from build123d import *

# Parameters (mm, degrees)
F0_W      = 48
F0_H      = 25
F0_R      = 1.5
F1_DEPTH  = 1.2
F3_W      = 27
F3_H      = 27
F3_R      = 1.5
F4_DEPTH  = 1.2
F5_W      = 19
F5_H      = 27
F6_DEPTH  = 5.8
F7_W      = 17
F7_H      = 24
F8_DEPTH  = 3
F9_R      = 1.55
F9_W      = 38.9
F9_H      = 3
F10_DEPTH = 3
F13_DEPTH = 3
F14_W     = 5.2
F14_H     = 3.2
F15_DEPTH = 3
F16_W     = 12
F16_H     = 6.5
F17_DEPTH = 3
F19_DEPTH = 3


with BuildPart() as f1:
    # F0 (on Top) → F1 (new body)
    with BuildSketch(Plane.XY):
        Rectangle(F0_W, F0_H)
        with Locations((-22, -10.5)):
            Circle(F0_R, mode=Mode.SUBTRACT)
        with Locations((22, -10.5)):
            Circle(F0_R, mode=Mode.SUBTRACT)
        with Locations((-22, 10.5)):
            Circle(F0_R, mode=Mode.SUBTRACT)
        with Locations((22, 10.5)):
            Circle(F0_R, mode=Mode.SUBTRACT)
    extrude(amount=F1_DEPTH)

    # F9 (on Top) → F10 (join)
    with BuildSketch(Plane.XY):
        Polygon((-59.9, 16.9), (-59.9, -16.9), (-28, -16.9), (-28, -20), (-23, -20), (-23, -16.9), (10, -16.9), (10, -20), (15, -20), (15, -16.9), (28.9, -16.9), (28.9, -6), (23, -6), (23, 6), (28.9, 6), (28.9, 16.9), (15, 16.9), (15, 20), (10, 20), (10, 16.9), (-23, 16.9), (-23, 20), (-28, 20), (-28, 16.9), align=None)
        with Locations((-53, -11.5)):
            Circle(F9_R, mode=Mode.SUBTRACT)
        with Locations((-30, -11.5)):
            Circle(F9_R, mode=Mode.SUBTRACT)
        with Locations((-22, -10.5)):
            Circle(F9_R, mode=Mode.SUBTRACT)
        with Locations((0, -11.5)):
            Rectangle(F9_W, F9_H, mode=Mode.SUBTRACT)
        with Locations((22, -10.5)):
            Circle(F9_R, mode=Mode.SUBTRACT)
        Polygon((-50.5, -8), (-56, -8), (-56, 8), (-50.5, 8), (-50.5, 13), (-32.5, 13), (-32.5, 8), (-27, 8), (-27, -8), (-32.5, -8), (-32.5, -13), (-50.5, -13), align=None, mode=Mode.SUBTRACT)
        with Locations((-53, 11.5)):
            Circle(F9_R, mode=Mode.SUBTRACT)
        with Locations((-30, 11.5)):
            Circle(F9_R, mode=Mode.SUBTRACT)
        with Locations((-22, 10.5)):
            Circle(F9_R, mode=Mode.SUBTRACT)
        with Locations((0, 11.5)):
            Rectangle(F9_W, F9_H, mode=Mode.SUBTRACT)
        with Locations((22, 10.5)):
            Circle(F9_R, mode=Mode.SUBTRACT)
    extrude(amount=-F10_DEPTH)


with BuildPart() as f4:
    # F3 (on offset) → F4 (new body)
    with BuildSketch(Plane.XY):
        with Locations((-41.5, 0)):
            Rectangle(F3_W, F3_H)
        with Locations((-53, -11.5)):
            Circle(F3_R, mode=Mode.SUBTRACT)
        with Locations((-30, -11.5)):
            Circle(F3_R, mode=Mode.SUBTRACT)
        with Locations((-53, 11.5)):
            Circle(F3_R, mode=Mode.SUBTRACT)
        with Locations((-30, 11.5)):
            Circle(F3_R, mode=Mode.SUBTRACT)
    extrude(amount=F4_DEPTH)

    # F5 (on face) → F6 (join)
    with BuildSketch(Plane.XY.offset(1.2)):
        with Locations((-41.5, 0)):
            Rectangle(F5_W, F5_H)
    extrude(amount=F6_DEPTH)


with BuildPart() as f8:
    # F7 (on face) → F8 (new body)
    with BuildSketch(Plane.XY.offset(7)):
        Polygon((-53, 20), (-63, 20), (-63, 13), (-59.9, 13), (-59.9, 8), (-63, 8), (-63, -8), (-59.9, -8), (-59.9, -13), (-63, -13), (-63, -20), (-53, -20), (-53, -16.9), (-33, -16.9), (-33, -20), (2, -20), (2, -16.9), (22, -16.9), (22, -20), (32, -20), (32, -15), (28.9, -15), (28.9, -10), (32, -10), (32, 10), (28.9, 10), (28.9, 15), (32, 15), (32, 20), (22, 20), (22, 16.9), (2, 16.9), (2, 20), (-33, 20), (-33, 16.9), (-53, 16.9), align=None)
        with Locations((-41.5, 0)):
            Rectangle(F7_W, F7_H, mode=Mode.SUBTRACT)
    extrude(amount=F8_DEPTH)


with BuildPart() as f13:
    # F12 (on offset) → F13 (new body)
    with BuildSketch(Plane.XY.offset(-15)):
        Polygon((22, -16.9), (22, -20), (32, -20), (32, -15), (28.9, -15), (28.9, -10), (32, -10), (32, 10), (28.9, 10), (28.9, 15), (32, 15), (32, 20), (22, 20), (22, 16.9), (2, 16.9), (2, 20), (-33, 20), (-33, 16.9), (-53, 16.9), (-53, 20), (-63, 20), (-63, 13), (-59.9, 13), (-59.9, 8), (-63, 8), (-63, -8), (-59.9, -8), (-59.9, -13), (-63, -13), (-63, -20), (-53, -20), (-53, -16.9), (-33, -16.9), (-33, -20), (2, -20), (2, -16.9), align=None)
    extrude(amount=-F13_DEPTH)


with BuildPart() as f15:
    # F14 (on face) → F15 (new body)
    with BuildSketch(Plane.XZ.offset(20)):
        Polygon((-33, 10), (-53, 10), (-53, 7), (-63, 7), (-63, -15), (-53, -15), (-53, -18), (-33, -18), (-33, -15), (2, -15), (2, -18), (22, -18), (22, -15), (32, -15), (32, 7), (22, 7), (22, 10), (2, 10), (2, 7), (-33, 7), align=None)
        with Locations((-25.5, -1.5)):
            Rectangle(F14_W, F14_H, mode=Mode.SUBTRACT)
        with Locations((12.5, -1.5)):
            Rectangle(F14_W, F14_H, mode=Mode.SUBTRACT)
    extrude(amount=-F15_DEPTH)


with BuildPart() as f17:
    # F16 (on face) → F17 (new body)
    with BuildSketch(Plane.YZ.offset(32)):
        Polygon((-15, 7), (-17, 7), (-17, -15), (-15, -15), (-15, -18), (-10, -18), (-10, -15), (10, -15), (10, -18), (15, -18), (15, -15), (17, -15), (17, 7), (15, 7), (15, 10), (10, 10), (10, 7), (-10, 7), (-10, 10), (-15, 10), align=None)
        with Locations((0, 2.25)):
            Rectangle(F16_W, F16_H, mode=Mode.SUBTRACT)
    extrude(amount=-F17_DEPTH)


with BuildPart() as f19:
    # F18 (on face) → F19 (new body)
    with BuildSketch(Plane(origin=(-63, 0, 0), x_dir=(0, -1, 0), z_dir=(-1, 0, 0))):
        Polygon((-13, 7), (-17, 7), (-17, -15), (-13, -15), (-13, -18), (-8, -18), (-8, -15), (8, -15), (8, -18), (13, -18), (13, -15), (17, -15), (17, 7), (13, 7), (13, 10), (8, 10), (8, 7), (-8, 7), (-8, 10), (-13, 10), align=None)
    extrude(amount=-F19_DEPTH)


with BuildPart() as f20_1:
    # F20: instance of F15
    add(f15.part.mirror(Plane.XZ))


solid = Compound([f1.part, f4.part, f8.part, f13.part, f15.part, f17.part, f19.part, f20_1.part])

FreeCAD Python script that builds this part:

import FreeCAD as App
import Part
import Sketcher
Q = App.Units.Quantity


def add_polygon(sketch, points):
    """Adds a closed chain of lines whose ends are joined by coincident constraints."""
    first, n = sketch.GeometryCount, len(points)
    for a, b in zip(points, points[1:] + points[:1]):
        sketch.addGeometry(Part.LineSegment(App.Vector(*a, 0), App.Vector(*b, 0)), False)
    for i in range(n):
        sketch.addConstraint(Sketcher.Constraint("Coincident", first + i, 2, first + (i + 1) % n, 1))

doc = App.newDocument("Part")
body = doc.addObject("PartDesign::Body", "Body")

sketch1 = doc.addObject("Sketcher::SketchObject", "Sketch")
body.addObject(sketch1)
sketch1.AttachmentSupport = (doc.XY_Plane, [""])
sketch1.MapMode = "FlatFace"
add_polygon(sketch1, [(-24, 12.5), (-24, -12.5), (24, -12.5), (24, 12.5)])
sketch1.addGeometry(Part.Circle(App.Vector(-22, -10.5, 0), App.Vector(0, 0, 1), 1.5), False)
sketch1.addGeometry(Part.Circle(App.Vector(22, -10.5, 0), App.Vector(0, 0, 1), 1.5), False)
sketch1.addGeometry(Part.Circle(App.Vector(-22, 10.5, 0), App.Vector(0, 0, 1), 1.5), False)
sketch1.addGeometry(Part.Circle(App.Vector(22, 10.5, 0), App.Vector(0, 0, 1), 1.5), False)
sketch1.addConstraint([
    Sketcher.Constraint("Vertical", 0),
    Sketcher.Constraint("Horizontal", 1),
    Sketcher.Constraint("Vertical", 2),
    Sketcher.Constraint("Horizontal", 3),
    Sketcher.Constraint("Equal", 4, 5),
    Sketcher.Constraint("Equal", 5, 6),
    Sketcher.Constraint("Equal", 6, 7),
    Sketcher.Constraint("Symmetric", 5, 3, 6, 3, -1, 1),
    Sketcher.Constraint("Symmetric", 4, 3, 7, 3, -1, 1),
    Sketcher.Constraint("Symmetric", 0, 2, 2, 2, -1, 1),
    Sketcher.Constraint("Symmetric", 4, 3, 5, 3, -2),
    Sketcher.Constraint("Diameter", 4, Q("3 mm")),
    Sketcher.Constraint("DistanceX", 1, 1, 1, 2, Q("48 mm")),
    Sketcher.Constraint("DistanceY", 0, 2, 0, 1, Q("25 mm")),
    Sketcher.Constraint("DistanceX", 4, 3, -1, 1, Q("22 mm")),
    Sketcher.Constraint("DistanceY", 4, 3, 6, 3, Q("21 mm")),
])
pad1 = doc.addObject("PartDesign::Pad", "Pad")
body.addObject(pad1)
pad1.Profile = sketch1
pad1.Length = 1.2

sketch2 = doc.addObject("Sketcher::SketchObject", "Sketch001")
body.addObject(sketch2)
sketch2.AttachmentSupport = (doc.XY_Plane, [""])
sketch2.MapMode = "FlatFace"
add_polygon(sketch2, [(-59.9, 16.9), (-59.9, -16.9), (-28, -16.9), (-28, -20), (-23, -20), (-23, -16.9), (10, -16.9), (10, -20), (15, -20), (15, -16.9), (28.9, -16.9), (28.9, -6), (23, -6), (23, 6), (28.9, 6), (28.9, 16.9), (15, 16.9), (15, 20), (10, 20), (10, 16.9), (-23, 16.9), (-23, 20), (-28, 20), (-28, 16.9)])
sketch2.addGeometry(Part.Circle(App.Vector(-53, -11.5, 0), App.Vector(0, 0, 1), 1.6), False)
sketch2.addGeometry(Part.Circle(App.Vector(-30, -11.5, 0), App.Vector(0, 0, 1), 1.6), False)
sketch2.addGeometry(Part.Circle(App.Vector(-22, -10.5, 0), App.Vector(0, 0, 1), 1.6), False)
add_polygon(sketch2, [(19.4, -13), (-19.4, -13), (-19.4, -10), (19.4, -10)])
sketch2.addGeometry(Part.Circle(App.Vector(22, -10.5, 0), App.Vector(0, 0, 1), 1.6), False)
add_polygon(sketch2, [(-50.5, -13), (-50.5, -8), (-56, -8), (-56, 8), (-50.5, 8), (-50.5, 13), (-32.5, 13), (-32.5, 8), (-27, 8), (-27, -8), (-32.5, -8), (-32.5, -13)])
sketch2.addGeometry(Part.Circle(App.Vector(-53, 11.5, 0), App.Vector(0, 0, 1), 1.6), False)
sketch2.addGeometry(Part.Circle(App.Vector(-30, 11.5, 0), App.Vector(0, 0, 1), 1.6), False)
sketch2.addGeometry(Part.Circle(App.Vector(-22, 10.5, 0), App.Vector(0, 0, 1), 1.6), False)
add_polygon(sketch2, [(19.4, 10), (-19.4, 10), (-19.4, 13), (19.4, 13)])
sketch2.addGeometry(Part.Circle(App.Vector(22, 10.5, 0), App.Vector(0, 0, 1), 1.6), False)
sketch2.addConstraint([
    Sketcher.Constraint("Vertical", 0),
    Sketcher.Constraint("Horizontal", 1),
    Sketcher.Constraint("Vertical", 2),
    Sketcher.Constraint("Horizontal", 3),
    Sketcher.Constraint("Vertical", 4),
    Sketcher.Constraint("Horizontal", 5),
    Sketcher.Constraint("Vertical", 6),
    Sketcher.Constraint("Horizontal", 7),
    Sketcher.Constraint("Vertical", 8),
    Sketcher.Constraint("Horizontal", 9),
    Sketcher.Constraint("Vertical", 10),
    Sketcher.Constraint("Horizontal", 11),
    Sketcher.Constraint("Vertical", 12),
    Sketcher.Constraint("Horizontal", 13),
    Sketcher.Constraint("Vertical", 14),
    Sketcher.Constraint("Horizontal", 15),
    Sketcher.Constraint("Vertical", 16),
    Sketcher.Constraint("Horizontal", 17),
    Sketcher.Constraint("Vertical", 18),
    Sketcher.Constraint("Horizontal", 19),
    Sketcher.Constraint("Vertical", 20),
    Sketcher.Constraint("Horizontal", 21),
    Sketcher.Constraint("Vertical", 22),
    Sketcher.Constraint("Horizontal", 23),
    Sketcher.Constraint("Horizontal", 27),
    Sketcher.Constraint("Vertical", 28),
    Sketcher.Constraint("Horizontal", 29),
    Sketcher.Constraint("Vertical", 30),
    Sketcher.Constraint("Vertical", 32),
    Sketcher.Constraint("Horizontal", 33),
    Sketcher.Constraint("Vertical", 34),
    Sketcher.Constraint("Horizontal", 35),
    Sketcher.Constraint("Vertical", 36),
    Sketcher.Constraint("Horizontal", 37),
    Sketcher.Constraint("Vertical", 38),
    Sketcher.Constraint("Horizontal", 39),
    Sketcher.Constraint("Vertical", 40),
    Sketcher.Constraint("Horizontal", 41),
    Sketcher.Constraint("Vertical", 42),
    Sketcher.Constraint("Horizontal", 43),
    Sketcher.Constraint("Horizontal", 47),
    Sketcher.Constraint("Vertical", 48),
    Sketcher.Constraint("Horizontal", 49),
    Sketcher.Constraint("Vertical", 50),
    Sketcher.Constraint("Equal", 24, 25),
    Sketcher.Constraint("Equal", 25, 26),
    Sketcher.Constraint("Equal", 26, 31),
    Sketcher.Constraint("Equal", 31, 44),
    Sketcher.Constraint("Equal", 44, 45),
    Sketcher.Constraint("Equal", 45, 46),
    Sketcher.Constraint("Equal", 46, 51),
    Sketcher.Constraint("Symmetric", 31, 3, 46, 3, -1, 1),
    Sketcher.Constraint("Symmetric", 26, 3, 51, 3, -1, 1),
    Sketcher.Constraint("Symmetric", 29, 2, 47, 2, -1, 1),
    Sketcher.Constraint("Symmetric", 27, 2, 49, 2, -1, 1),
    Sketcher.Constraint("Symmetric", 26, 3, 31, 3, -2),
    Sketcher.Constraint("Symmetric", 24, 3, 44, 3, -1),
    Sketcher.Constraint("Symmetric", 25, 3, 45, 3, -1),
    Sketcher.Constraint("Symmetric", 10, 2, 13, 2, -1),
    Sketcher.Constraint("Symmetric", 8, 2, 15, 2, -1),
    Sketcher.Constraint("Symmetric", 6, 2, 17, 2, -1),
    Sketcher.Constraint("Symmetric", 4, 2, 19, 2, -1),
    Sketcher.Constraint("Symmetric", 2, 2, 21, 2, -1),
    Sketcher.Constraint("Symmetric", 32, 2, 35, 2, -1),
    Sketcher.Constraint("Symmetric", 38, 2, 41, 2, -1),
    Sketcher.Constraint("Horizontal", 24, 3, 25, 3),
    Sketcher.Constraint("Horizontal", 1, 2, 4, 2),
    Sketcher.Constraint("Horizontal", 3, 2, 6, 2),
    Sketcher.Constraint("Horizontal", 5, 2, 8, 2),
    Sketcher.Constraint("Horizontal", 19, 2, 22, 2),
    Sketcher.Constraint("Horizontal", 35, 2, 38, 2),
    Sketcher.Constraint("Horizontal", 30, 2, 42, 2),
    Sketcher.Constraint("Horizontal", 37, 2, 48, 2),
    Sketcher.Constraint("Vertical", 28, 2, 47, 2),
    Sketcher.Constraint("Equal", 3, 7),
    Sketcher.Constraint("Equal", 35, 39),
    Sketcher.Constraint("Equal", 21, 32),
    Sketcher.Constraint("Diameter", 24, Q("3.1 mm")),
    Sketcher.Constraint("DistanceX", 3, 1, 3, 2, Q("5 mm")),
    Sketcher.Constraint("DistanceX", 5, 1, 5, 2, Q("33 mm")),
    Sketcher.Constraint("DistanceX", 37, 1, 37, 2, Q("18 mm")),
    Sketcher.Constraint("DistanceY", 12, 1, 12, 2, Q("12 mm")),
    Sketcher.Constraint("DistanceY", 28, 1, 28, 2, Q("3 mm")),
    Sketcher.Constraint("DistanceY", 34, 1, 34, 2, Q("16 mm")),
    Sketcher.Constraint("DistanceX", 1, 1, 1, 2, Q("31.9 mm")),
    Sketcher.Constraint("DistanceX", 9, 1, 9, 2, Q("13.9 mm")),
    Sketcher.Constraint("DistanceX", 11, 2, 11, 1, Q("5.9 mm")),
    Sketcher.Constraint("DistanceX", 27, 2, 27, 1, Q("38.9 mm")),
    Sketcher.Constraint("DistanceX", 33, 2, 33, 1, Q("5.5 mm")),
    Sketcher.Constraint("DistanceY", 0, 2, 0, 1, Q("33.8 mm")),
    Sketcher.Constraint("DistanceY", 2, 2, 2, 1, Q("3.1 mm")),
    Sketcher.Constraint("DistanceX", 24, 3, -1, 1, Q("53 mm")),
    Sketcher.Constraint("DistanceX", 25, 3, -1, 1, Q("30 mm")),
    Sketcher.Constraint("DistanceX", 26, 3, -1, 1, Q("22 mm")),
    Sketcher.Constraint("DistanceX", 1, 2, -1, 1, Q("28 mm")),
    Sketcher.Constraint("DistanceX", 33, 2, -1, 1, Q("56 mm")),
    Sketcher.Constraint("DistanceY", 25, 3, 26, 3, Q("1 mm")),
    Sketcher.Constraint("DistanceY", 24, 3, 44, 3, Q("23 mm")),
])
pad2 = doc.addObject("PartDesign::Pad", "Pad001")
body.addObject(pad2)
pad2.Profile = sketch2
pad2.Length = 3
pad2.Reversed = True
body2 = doc.addObject("PartDesign::Body", "Body001")

sketch3 = doc.addObject("Sketcher::SketchObject", "Sketch002")
body2.addObject(sketch3)
sketch3.AttachmentSupport = (doc.getObject("XY_Plane001"), [""])
sketch3.MapMode = "FlatFace"
add_polygon(sketch3, [(-55, 13.5), (-55, -13.5), (-28, -13.5), (-28, 13.5)])
sketch3.addGeometry(Part.Circle(App.Vector(-53, -11.5, 0), App.Vector(0, 0, 1), 1.5), False)
sketch3.addGeometry(Part.Circle(App.Vector(-30, -11.5, 0), App.Vector(0, 0, 1), 1.5), False)
sketch3.addGeometry(Part.Circle(App.Vector(-53, 11.5, 0), App.Vector(0, 0, 1), 1.5), False)
sketch3.addGeometry(Part.Circle(App.Vector(-30, 11.5, 0), App.Vector(0, 0, 1), 1.5), False)
sketch3.addConstraint([
    Sketcher.Constraint("Vertical", 0),
    Sketcher.Constraint("Horizontal", 1),
    Sketcher.Constraint("Vertical", 2),
    Sketcher.Constraint("Horizontal", 3),
    Sketcher.Constraint("Equal", 4, 5),
    Sketcher.Constraint("Equal", 5, 6),
    Sketcher.Constraint("Equal", 6, 7),
    Sketcher.Constraint("Symmetric", 4, 3, 6, 3, -1),
    Sketcher.Constraint("Symmetric", 5, 3, 7, 3, -1),
    Sketcher.Constraint("Horizontal", 4, 3, 5, 3),
    Sketcher.Constraint("Equal", 3, 0),
    Sketcher.Constraint("Diameter", 4, Q("3 mm")),
    Sketcher.Constraint("DistanceX", 1, 1, 1, 2, Q("27 mm")),
    Sketcher.Constraint("DistanceX", 4, 3, -1, 1, Q("53 mm")),
    Sketcher.Constraint("DistanceX", 5, 3, -1, 1, Q("30 mm")),
    Sketcher.Constraint("DistanceX", 0, 2, -1, 1, Q("55 mm")),
    Sketcher.Constraint("DistanceY", 4, 3, 6, 3, Q("23 mm")),
    Sketcher.Constraint("DistanceY", 0, 2, 4, 3, Q("2 mm")),
])
pad3 = doc.addObject("PartDesign::Pad", "Pad002")
body2.addObject(pad3)
pad3.Profile = sketch3
pad3.Length = 1.2

sketch4 = doc.addObject("Sketcher::SketchObject", "Sketch003")
body2.addObject(sketch4)
sketch4.AttachmentSupport = (doc.getObject("XY_Plane001"), [""])
sketch4.MapMode = "FlatFace"
sketch4.AttachmentOffset = App.Placement(App.Vector(0, 0, 1.2), App.Rotation())
add_polygon(sketch4, [(-51, 14), (-51, -14), (-32, -14), (-32, 14)])
sketch4.addConstraint([
    Sketcher.Constraint("Vertical", 0),
    Sketcher.Constraint("Horizontal", 1),
    Sketcher.Constraint("Vertical", 2),
    Sketcher.Constraint("Horizontal", 3),
    Sketcher.Constraint("DistanceX", 1, 1, 1, 2, Q("19 mm")),
    Sketcher.Constraint("DistanceY", 0, 2, 0, 1, Q("27 mm")),
    Sketcher.Constraint("DistanceX", 0, 2, -1, 1, Q("51 mm")),
    Sketcher.Constraint("DistanceY", 0, 2, -1, 1, Q("13.5 mm")),
])
pad4 = doc.addObject("PartDesign::Pad", "Pad003")
body2.addObject(pad4)
pad4.Profile = sketch4
pad4.Length = 5.8
body3 = doc.addObject("PartDesign::Body", "Body002")

sketch5 = doc.addObject("Sketcher::SketchObject", "Sketch004")
body3.addObject(sketch5)
sketch5.AttachmentSupport = (doc.getObject("XY_Plane002"), [""])
sketch5.MapMode = "FlatFace"
sketch5.AttachmentOffset = App.Placement(App.Vector(0, 0, 7), App.Rotation())
add_polygon(sketch5, [(-53, 20), (-63, 20), (-63, 13), (-59.9, 13), (-59.9, 8), (-63, 8), (-63, -8), (-59.9, -8), (-59.9, -13), (-63, -13), (-63, -20), (-53, -20), (-53, -16.9), (-33, -16.9), (-33, -20), (2, -20), (2, -16.9), (22, -16.9), (22, -20), (32, -20), (32, -15), (28.9, -15), (28.9, -10), (32, -10), (32, 10), (28.9, 10), (28.9, 15), (32, 15), (32, 20), (22, 20), (22, 16.9), (2, 16.9), (2, 20), (-33, 20), (-33, 16.9), (-53, 16.9)])
add_polygon(sketch5, [(-33, -12), (-50, -12), (-50, 12), (-33, 12)])
sketch5.addConstraint([
    Sketcher.Constraint("Horizontal", 0),
    Sketcher.Constraint("Vertical", 1),
    Sketcher.Constraint("Horizontal", 2),
    Sketcher.Constraint("Vertical", 3),
    Sketcher.Constraint("Horizontal", 4),
    Sketcher.Constraint("Vertical", 5),
    Sketcher.Constraint("Horizontal", 6),
    Sketcher.Constraint("Vertical", 7),
    Sketcher.Constraint("Horizontal", 8),
    Sketcher.Constraint("Vertical", 9),
    Sketcher.Constraint("Horizontal", 10),
    Sketcher.Constraint("Vertical", 11),
    Sketcher.Constraint("Horizontal", 12),
    Sketcher.Constraint("Vertical", 13),
    Sketcher.Constraint("Horizontal", 14),
    Sketcher.Constraint("Vertical", 15),
    Sketcher.Constraint("Horizontal", 16),
    Sketcher.Constraint("Vertical", 17),
    Sketcher.Constraint("Horizontal", 18),
    Sketcher.Constraint("Vertical", 19),
    Sketcher.Constraint("Horizontal", 20),
    Sketcher.Constraint("Vertical", 21),
    Sketcher.Constraint("Horizontal", 22),
    Sketcher.Constraint("Vertical", 23),
    Sketcher.Constraint("Horizontal", 24),
    Sketcher.Constraint("Vertical", 25),
    Sketcher.Constraint("Horizontal", 26),
    Sketcher.Constraint("Vertical", 27),
    Sketcher.Constraint("Horizontal", 28),
    Sketcher.Constraint("Vertical", 29),
    Sketcher.Constraint("Horizontal", 30),
    Sketcher.Constraint("Vertical", 31),
    Sketcher.Constraint("Horizontal", 32),
    Sketcher.Constraint("Vertical", 33),
    Sketcher.Constraint("Horizontal", 34),
    Sketcher.Constraint("Vertical", 35),
    Sketcher.Constraint("Horizontal", 36),
    Sketcher.Constraint("Vertical", 37),
    Sketcher.Constraint("Horizontal", 38),
    Sketcher.Constraint("Vertical", 39),
    Sketcher.Constraint("Symmetric", 3, 2, 6, 2, -1),
    Sketcher.Constraint("Symmetric", 1, 2, 8, 2, -1),
    Sketcher.Constraint("Symmetric", 21, 2, 24, 2, -1),
    Sketcher.Constraint("Symmetric", 19, 2, 26, 2, -1),
    Sketcher.Constraint("Symmetric", 17, 2, 28, 2, -1),
    Sketcher.Constraint("Symmetric", 15, 2, 30, 2, -1),
    Sketcher.Constraint("Symmetric", 13, 2, 32, 2, -1),
    Sketcher.Constraint("Symmetric", 11, 2, 34, 2, -1),
    Sketcher.Constraint("Horizontal", 10, 2, 13, 2),
    Sketcher.Constraint("Horizontal", 12, 2, 15, 2),
    Sketcher.Constraint("Horizontal", 14, 2, 17, 2),
    Sketcher.Constraint("Horizontal", 0, 2, 27, 2),
    Sketcher.Constraint("Vertical", 1, 2, 4, 2),
    Sketcher.Constraint("Vertical", 19, 2, 22, 2),
    Sketcher.Constraint("Vertical", 33, 2, 38, 2),
    Sketcher.Constraint("Equal", 12, 16),
    Sketcher.Constraint("Equal", 10, 18),
    Sketcher.Constraint("Equal", 8, 20),
    Sketcher.Constraint("Equal", 26, 11),
    Sketcher.Constraint("Equal", 7, 19),
    Sketcher.Constraint("Equal", 19, 21),
    Sketcher.Constraint("Equal", 34, 23),
    Sketcher.Constraint("DistanceX", 0, 2, 0, 1, Q("10 mm")),
    Sketcher.Constraint("DistanceX", 12, 1, 12, 2, Q("20 mm")),
    Sketcher.Constraint("DistanceX", 14, 1, 14, 2, Q("35 mm")),
    Sketcher.Constraint("DistanceX", 36, 2, 36, 1, Q("17 mm")),
    Sketcher.Constraint("DistanceY", 1, 2, 1, 1, Q("7 mm")),
    Sketcher.Constraint("DistanceY", 3, 2, 3, 1, Q("5 mm")),
    Sketcher.Constraint("DistanceY", 37, 1, 37, 2, Q("24 mm")),
    Sketcher.Constraint("DistanceX", 2, 1, 2, 2, Q("3.1 mm")),
    Sketcher.Constraint("DistanceX", 0, 2, -1, 1, Q("63 mm")),
    Sketcher.Constraint("DistanceY", 36, 2, -1, 1, Q("12 mm")),
])
pad5 = doc.addObject("PartDesign::Pad", "Pad004")
body3.addObject(pad5)
pad5.Profile = sketch5
pad5.Length = 3
body4 = doc.addObject("PartDesign::Body", "Body003")

sketch6 = doc.addObject("Sketcher::SketchObject", "Sketch005")
body4.addObject(sketch6)
sketch6.AttachmentSupport = (doc.getObject("XY_Plane003"), [""])
sketch6.MapMode = "FlatFace"
sketch6.AttachmentOffset = App.Placement(App.Vector(0, 0, -15), App.Rotation())
add_polygon(sketch6, [(22, -16.9), (22, -20), (32, -20), (32, -15), (28.9, -15), (28.9, -10), (32, -10), (32, 10), (28.9, 10), (28.9, 15), (32, 15), (32, 20), (22, 20), (22, 16.9), (2, 16.9), (2, 20), (-33, 20), (-33, 16.9), (-53, 16.9), (-53, 20), (-63, 20), (-63, 13), (-59.9, 13), (-59.9, 8), (-63, 8), (-63, -8), (-59.9, -8), (-59.9, -13), (-63, -13), (-63, -20), (-53, -20), (-53, -16.9), (-33, -16.9), (-33, -20), (2, -20), (2, -16.9)])
sketch6.addConstraint([
    Sketcher.Constraint("Vertical", 0),
    Sketcher.Constraint("Horizontal", 1),
    Sketcher.Constraint("Vertical", 2),
    Sketcher.Constraint("Horizontal", 3),
    Sketcher.Constraint("Vertical", 4),
    Sketcher.Constraint("Horizontal", 5),
    Sketcher.Constraint("Vertical", 6),
    Sketcher.Constraint("Horizontal", 7),
    Sketcher.Constraint("Vertical", 8),
    Sketcher.Constraint("Horizontal", 9),
    Sketcher.Constraint("Vertical", 10),
    Sketcher.Constraint("Horizontal", 11),
    Sketcher.Constraint("Vertical", 12),
    Sketcher.Constraint("Horizontal", 13),
    Sketcher.Constraint("Vertical", 14),
    Sketcher.Constraint("Horizontal", 15),
    Sketcher.Constraint("Vertical", 16),
    Sketcher.Constraint("Horizontal", 17),
    Sketcher.Constraint("Vertical", 18),
    Sketcher.Constraint("Horizontal", 19),
    Sketcher.Constraint("Vertical", 20),
    Sketcher.Constraint("Horizontal", 21),
    Sketcher.Constraint("Vertical", 22),
    Sketcher.Constraint("Horizontal", 23),
    Sketcher.Constraint("Vertical", 24),
    Sketcher.Constraint("Horizontal", 25),
    Sketcher.Constraint("Vertical", 26),
    Sketcher.Constraint("Horizontal", 27),
    Sketcher.Constraint("Vertical", 28),
    Sketcher.Constraint("Horizontal", 29),
    Sketcher.Constraint("Vertical", 30),
    Sketcher.Constraint("Horizontal", 31),
    Sketcher.Constraint("Vertical", 32),
    Sketcher.Constraint("Horizontal", 33),
    Sketcher.Constraint("Vertical", 34),
    Sketcher.Constraint("Horizontal", 35),
    Sketcher.Constraint("Symmetric", 4, 2, 7, 2, -1),
    Sketcher.Constraint("Symmetric", 2, 2, 9, 2, -1),
    Sketcher.Constraint("Symmetric", 0, 2, 11, 2, -1),
    Sketcher.Constraint("Symmetric", 22, 2, 25, 2, -1),
    Sketcher.Constraint("Symmetric", 20, 2, 27, 2, -1),
    Sketcher.Constraint("Symmetric", 18, 2, 29, 2, -1),
    Sketcher.Constraint("Symmetric", 16, 2, 31, 2, -1),
    Sketcher.Constraint("Symmetric", 14, 2, 33, 2, -1),
    Sketcher.Constraint("Horizontal", 11, 2, 14, 2),
    Sketcher.Constraint("Horizontal", 13, 2, 16, 2),
    Sketcher.Constraint("Horizontal", 15, 2, 18, 2),
    Sketcher.Constraint("Horizontal", 31, 2, 34, 2),
    Sketcher.Constraint("Vertical", 2, 2, 5, 2),
    Sketcher.Constraint("Vertical", 20, 2, 23, 2),
    Sketcher.Constraint("Equal", 13, 17),
    Sketcher.Constraint("Equal", 11, 19),
    Sketcher.Constraint("Equal", 9, 21),
    Sketcher.Constraint("Equal", 27, 0),
    Sketcher.Constraint("Equal", 2, 4),
    Sketcher.Constraint("Equal", 35, 6),
    Sketcher.Constraint("Equal", 10, 22),
    Sketcher.Constraint("DistanceX", 1, 1, 1, 2, Q("10 mm")),
    Sketcher.Constraint("DistanceX", 13, 2, 13, 1, Q("20 mm")),
    Sketcher.Constraint("DistanceX", 15, 2, 15, 1, Q("35 mm")),
    Sketcher.Constraint("DistanceY", 2, 1, 2, 2, Q("5 mm")),
    Sketcher.Constraint("DistanceY", 20, 2, 20, 1, Q("7 mm")),
    Sketcher.Constraint("DistanceX", 3, 2, 3, 1, Q("3.1 mm")),
    Sketcher.Constraint("DistanceX", -1, 1, 0, 2, Q("22 mm")),
])
pad6 = doc.addObject("PartDesign::Pad", "Pad005")
body4.addObject(pad6)
pad6.Profile = sketch6
pad6.Length = 3
pad6.Reversed = True
body5 = doc.addObject("PartDesign::Body", "Body004")

sketch7 = doc.addObject("Sketcher::SketchObject", "Sketch006")
body5.addObject(sketch7)
sketch7.AttachmentSupport = (doc.getObject("XZ_Plane004"), [""])
sketch7.MapMode = "FlatFace"
sketch7.AttachmentOffset = App.Placement(App.Vector(0, 0, 20), App.Rotation())
add_polygon(sketch7, [(-33, 10), (-53, 10), (-53, 7), (-63, 7), (-63, -15), (-53, -15), (-53, -18), (-33, -18), (-33, -15), (2, -15), (2, -18), (22, -18), (22, -15), (32, -15), (32, 7), (22, 7), (22, 10), (2, 10), (2, 7), (-33, 7)])
add_polygon(sketch7, [(-22.9, -3.1), (-28.1, -3.1), (-28.1, 0.1), (-22.9, 0.1)])
add_polygon(sketch7, [(15.1, -3.1), (9.9, -3.1), (9.9, 0.1), (15.1, 0.1)])
sketch7.addConstraint([
    Sketcher.Constraint("Horizontal", 0),
    Sketcher.Constraint("Vertical", 1),
    Sketcher.Constraint("Horizontal", 2),
    Sketcher.Constraint("Vertical", 3),
    Sketcher.Constraint("Horizontal", 4),
    Sketcher.Constraint("Vertical", 5),
    Sketcher.Constraint("Horizontal", 6),
    Sketcher.Constraint("Vertical", 7),
    Sketcher.Constraint("Horizontal", 8),
    Sketcher.Constraint("Vertical", 9),
    Sketcher.Constraint("Horizontal", 10),
    Sketcher.Constraint("Vertical", 11),
    Sketcher.Constraint("Horizontal", 12),
    Sketcher.Constraint("Vertical", 13),
    Sketcher.Constraint("Horizontal", 14),
    Sketcher.Constraint("Vertical", 15),
    Sketcher.Constraint("Horizontal", 16),
    Sketcher.Constraint("Vertical", 17),
    Sketcher.Constraint("Horizontal", 18),
    Sketcher.Constraint("Vertical", 19),
    Sketcher.Constraint("Horizontal", 20),
    Sketcher.Constraint("Vertical", 21),
    Sketcher.Constraint("Horizontal", 22),
    Sketcher.Constraint("Vertical", 23),
    Sketcher.Constraint("Horizontal", 24),
    Sketcher.Constraint("Vertical", 25),
    Sketcher.Constraint("Horizontal", 26),
    Sketcher.Constraint("Vertical", 27),
    Sketcher.Constraint("Horizontal", 4, 2, 7, 2),
    Sketcher.Constraint("Horizontal", 6, 2, 9, 2),
    Sketcher.Constraint("Horizontal", 8, 2, 11, 2),
    Sketcher.Constraint("Horizontal", 2, 2, 13, 2),
    Sketcher.Constraint("Horizontal", 0, 2, 15, 2),
    Sketcher.Constraint("Horizontal", 14, 2, 17, 2),
    Sketcher.Constraint("Horizontal", 23, 2, 24, 2),
    Sketcher.Constraint("Horizontal", 22, 2, 25, 2),
    Sketcher.Constraint("Vertical", 1, 2, 4, 2),
    Sketcher.Constraint("Vertical", 11, 2, 14, 2),
    Sketcher.Constraint("Vertical", 9, 2, 16, 2),
    Sketcher.Constraint("Vertical", 7, 2, 18, 2),
    Sketcher.Constraint("Equal", 6, 10),
    Sketcher.Constraint("Equal", 4, 12),
    Sketcher.Constraint("Equal", 22, 24),
    Sketcher.Constraint("Equal", 1, 5),
    Sketcher.Constraint("DistanceX", 0, 2, 0, 1, Q("20 mm")),
    Sketcher.Constraint("DistanceX", 2, 2, 2, 1, Q("10 mm")),
    Sketcher.Constraint("DistanceX", 8, 1, 8, 2, Q("35 mm")),
    Sketcher.Constraint("DistanceY", 1, 2, 1, 1, Q("3 mm")),
    Sketcher.Constraint("DistanceY", 3, 2, 3, 1, Q("22 mm")),
    Sketcher.Constraint("DistanceX", 20, 2, 20, 1, Q("5.2 mm")),
    Sketcher.Constraint("DistanceY", 21, 1, 21, 2, Q("3.2 mm")),
    Sketcher.Constraint("DistanceX", 0, 2, -1, 1, Q("53 mm")),
    Sketcher.Constraint("DistanceY", -1, 1, 0, 2, Q("10 mm")),
    Sketcher.Constraint("DistanceX", 20, 2, -1, 1, Q("28.1 mm")),
    Sketcher.Constraint("DistanceY", 20, 2, -1, 1, Q("3.1 mm")),
    Sketcher.Constraint("DistanceX", -1, 1, 24, 2, Q("9.9 mm")),
])
pad7 = doc.addObject("PartDesign::Pad", "Pad006")
body5.addObject(pad7)
pad7.Profile = sketch7
pad7.Length = 3
pad7.Reversed = True
body6 = doc.addObject("PartDesign::Body", "Body005")

sketch8 = doc.addObject("Sketcher::SketchObject", "Sketch007")
body6.addObject(sketch8)
sketch8.AttachmentSupport = (doc.getObject("YZ_Plane005"), [""])
sketch8.MapMode = "FlatFace"
sketch8.AttachmentOffset = App.Placement(App.Vector(0, 0, 32), App.Rotation())
add_polygon(sketch8, [(-15, 7), (-17, 7), (-17, -15), (-15, -15), (-15, -18), (-10, -18), (-10, -15), (10, -15), (10, -18), (15, -18), (15, -15), (17, -15), (17, 7), (15, 7), (15, 10), (10, 10), (10, 7), (-10, 7), (-10, 10), (-15, 10)])
add_polygon(sketch8, [(6, -1), (-6, -1), (-6, 5.5), (6, 5.5)])
sketch8.addConstraint([
    Sketcher.Constraint("Horizontal", 0),
    Sketcher.Constraint("Vertical", 1),
    Sketcher.Constraint("Horizontal", 2),
    Sketcher.Constraint("Vertical", 3),
    Sketcher.Constraint("Horizontal", 4),
    Sketcher.Constraint("Vertical", 5),
    Sketcher.Constraint("Horizontal", 6),
    Sketcher.Constraint("Vertical", 7),
    Sketcher.Constraint("Horizontal", 8),
    Sketcher.Constraint("Vertical", 9),
    Sketcher.Constraint("Horizontal", 10),
    Sketcher.Constraint("Vertical", 11),
    Sketcher.Constraint("Horizontal", 12),
    Sketcher.Constraint("Vertical", 13),
    Sketcher.Constraint("Horizontal", 14),
    Sketcher.Constraint("Vertical", 15),
    Sketcher.Constraint("Horizontal", 16),
    Sketcher.Constraint("Vertical", 17),
    Sketcher.Constraint("Horizontal", 18),
    Sketcher.Constraint("Vertical", 19),
    Sketcher.Constraint("Horizontal", 20),
    Sketcher.Constraint("Vertical", 21),
    Sketcher.Constraint("Horizontal", 22),
    Sketcher.Constraint("Vertical", 23),
    Sketcher.Constraint("Symmetric", 4, 2, 7, 2, -2),
    Sketcher.Constraint("Symmetric", 2, 2, 9, 2, -2),
    Sketcher.Constraint("Symmetric", 0, 2, 11, 2, -2),
    Sketcher.Constraint("Symmetric", 14, 2, 17, 2, -2),
    Sketcher.Constraint("Horizontal", 2, 2, 5, 2),
    Sketcher.Constraint("Horizontal", 12, 2, 15, 2),
    Sketcher.Constraint("Vertical", 9, 2, 12, 2),
    Sketcher.Constraint("Vertical", 7, 2, 14, 2),
    Sketcher.Constraint("Vertical", 3, 2, 18, 2),
    Sketcher.Constraint("Equal", 9, 13),
    Sketcher.Constraint("DistanceX", 0, 2, 0, 1, Q("2 mm")),
    Sketcher.Constraint("DistanceX", 4, 1, 4, 2, Q("5 mm")),
    Sketcher.Constraint("DistanceX", 6, 1, 6, 2, Q("20 mm")),
    Sketcher.Constraint("DistanceX", 20, 2, 20, 1, Q("12 mm")),
    Sketcher.Constraint("DistanceY", 1, 2, 1, 1, Q("22 mm")),
    Sketcher.Constraint("DistanceY", 3, 2, 3, 1, Q("3 mm")),
    Sketcher.Constraint("DistanceY", 21, 1, 21, 2, Q("6.5 mm")),
    Sketcher.Constraint("DistanceY", -1, 1, 0, 2, Q("7 mm")),
    Sketcher.Constraint("DistanceX", 20, 2, -1, 1, Q("6 mm")),
    Sketcher.Constraint("DistanceY", 20, 2, -1, 1, Q("1 mm")),
])
pad8 = doc.addObject("PartDesign::Pad", "Pad007")
body6.addObject(pad8)
pad8.Profile = sketch8
pad8.Length = 3
pad8.Reversed = True
body7 = doc.addObject("PartDesign::Body", "Body006")

sketch9 = doc.addObject("Sketcher::SketchObject", "Sketch008")
body7.addObject(sketch9)
sketch9.AttachmentSupport = (doc.getObject("YZ_Plane006"), [""])
sketch9.MapMode = "FlatFace"
sketch9.AttachmentOffset = App.Placement(App.Vector(0, 0, -63), App.Rotation())
add_polygon(sketch9, [(13, 7), (17, 7), (17, -15), (13, -15), (13, -18), (8, -18), (8, -15), (-8, -15), (-8, -18), (-13, -18), (-13, -15), (-17, -15), (-17, 7), (-13, 7), (-13, 10), (-8, 10), (-8, 7), (8, 7), (8, 10), (13, 10)])
sketch9.addConstraint([
    Sketcher.Constraint("Horizontal", 0),
    Sketcher.Constraint("Vertical", 1),
    Sketcher.Constraint("Horizontal", 2),
    Sketcher.Constraint("Vertical", 3),
    Sketcher.Constraint("Horizontal", 4),
    Sketcher.Constraint("Vertical", 5),
    Sketcher.Constraint("Horizontal", 6),
    Sketcher.Constraint("Vertical", 7),
    Sketcher.Constraint("Horizontal", 8),
    Sketcher.Constraint("Vertical", 9),
    Sketcher.Constraint("Horizontal", 10),
    Sketcher.Constraint("Vertical", 11),
    Sketcher.Constraint("Horizontal", 12),
    Sketcher.Constraint("Vertical", 13),
    Sketcher.Constraint("Horizontal", 14),
    Sketcher.Constraint("Vertical", 15),
    Sketcher.Constraint("Horizontal", 16),
    Sketcher.Constraint("Vertical", 17),
    Sketcher.Constraint("Horizontal", 18),
    Sketcher.Constraint("Vertical", 19),
    Sketcher.Constraint("Symmetric", 4, 2, 7, 2, -2),
    Sketcher.Constraint("Symmetric", 2, 2, 9, 2, -2),
    Sketcher.Constraint("Symmetric", 0, 2, 11, 2, -2),
    Sketcher.Constraint("Symmetric", 14, 2, 17, 2, -2),
    Sketcher.Constraint("Horizontal", 2, 2, 5, 2),
    Sketcher.Constraint("Horizontal", 12, 2, 15, 2),
    Sketcher.Constraint("Vertical", 9, 2, 12, 2),
    Sketcher.Constraint("Vertical", 7, 2, 14, 2),
    Sketcher.Constraint("Vertical", 3, 2, 18, 2),
    Sketcher.Constraint("Equal", 9, 13),
    Sketcher.Constraint("DistanceX", 0, 1, 0, 2, Q("4 mm")),
    Sketcher.Constraint("DistanceX", 4, 2, 4, 1, Q("5 mm")),
    Sketcher.Constraint("DistanceX", 6, 2, 6, 1, Q("16 mm")),
    Sketcher.Constraint("DistanceY", 1, 2, 1, 1, Q("22 mm")),
    Sketcher.Constraint("DistanceY", 3, 2, 3, 1, Q("3 mm")),
    Sketcher.Constraint("DistanceY", -1, 1, 0, 2, Q("7 mm")),
])
pad9 = doc.addObject("PartDesign::Pad", "Pad008")
body7.addObject(pad9)
pad9.Profile = sketch9
pad9.Length = 3
body8 = doc.addObject("PartDesign::Body", "Body007")
doc.recompute()

mirroring = doc.addObject("Part::Mirroring", "Mirroring")
mirroring.Source = body5
mirroring.Base = App.Vector(0, 0, 0)
mirroring.Normal = App.Vector(0, -1, 0)
body8.BaseFeature = mirroring
doc.recompute()
mirroring.Visibility = False

doc.recompute()
